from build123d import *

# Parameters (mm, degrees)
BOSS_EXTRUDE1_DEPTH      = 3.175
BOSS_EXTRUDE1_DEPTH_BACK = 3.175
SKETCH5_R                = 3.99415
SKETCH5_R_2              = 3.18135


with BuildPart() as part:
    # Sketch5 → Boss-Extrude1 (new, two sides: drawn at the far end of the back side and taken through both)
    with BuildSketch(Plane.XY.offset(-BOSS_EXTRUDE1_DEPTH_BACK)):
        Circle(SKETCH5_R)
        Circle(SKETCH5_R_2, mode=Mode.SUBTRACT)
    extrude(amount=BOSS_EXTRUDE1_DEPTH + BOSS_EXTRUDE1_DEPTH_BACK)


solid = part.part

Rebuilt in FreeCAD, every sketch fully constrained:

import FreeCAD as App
import Part
import Sketcher
Q = App.Units.Quantity

doc = App.newDocument("Part")
body = doc.addObject("PartDesign::Body", "Body")

# Sketch on XY plane
sketch1 = body.newObject("Sketcher::SketchObject", "Sketch")
sketch1.AttachmentSupport = (doc.getObject("XY_Plane"), [""])
sketch1.MapMode = "FlatFace"
sketch1.addGeometry(Part.Circle(App.Vector(0, 0, 0), App.Vector(0, 0, 1), 4), False)
sketch1.addGeometry(Part.Circle(App.Vector(0, 0, 0), App.Vector(0, 0, 1), 3.2), False)
sketch1.addConstraint(Sketcher.Constraint("Coincident", 0, 3, -1, 1))
sketch1.addConstraint(Sketcher.Constraint("Coincident", 1, 3, -1, 1))
sketch1.addConstraint(Sketcher.Constraint("Diameter", 0, Q("0.3145 in")))
sketch1.addConstraint(Sketcher.Constraint("Diameter", 1, Q("0.2505 in")))
pad1 = body.newObject("PartDesign::Pad", "Pad")
pad1.Profile = sketch1
pad1.Type = "TwoLengths"
pad1.Length = Q("0.125 in")
pad1.Length2 = Q("0.125 in")

doc.recompute()
